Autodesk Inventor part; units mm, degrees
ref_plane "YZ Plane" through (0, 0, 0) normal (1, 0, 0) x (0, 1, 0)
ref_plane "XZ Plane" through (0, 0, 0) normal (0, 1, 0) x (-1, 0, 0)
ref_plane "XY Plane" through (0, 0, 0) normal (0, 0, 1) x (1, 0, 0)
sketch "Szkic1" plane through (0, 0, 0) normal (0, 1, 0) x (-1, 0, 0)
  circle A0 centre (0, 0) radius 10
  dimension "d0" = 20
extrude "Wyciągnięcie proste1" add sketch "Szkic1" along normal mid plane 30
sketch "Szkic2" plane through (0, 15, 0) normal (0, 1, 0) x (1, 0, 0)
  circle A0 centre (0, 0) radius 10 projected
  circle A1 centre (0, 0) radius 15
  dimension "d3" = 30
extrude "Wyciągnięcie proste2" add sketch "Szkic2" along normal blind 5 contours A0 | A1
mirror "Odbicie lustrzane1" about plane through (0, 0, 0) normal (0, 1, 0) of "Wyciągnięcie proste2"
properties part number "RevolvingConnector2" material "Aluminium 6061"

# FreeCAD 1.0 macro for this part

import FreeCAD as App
import Part
import Sketcher
Q = App.Units.Quantity

doc = App.newDocument("Part")
body = doc.addObject("PartDesign::Body", "Body")

# Sketch on XZ plane
sketch1 = body.newObject("Sketcher::SketchObject", "Sketch")
sketch1.AttachmentSupport = (doc.getObject("XZ_Plane"), [""])
sketch1.MapMode = "FlatFace"
sketch1.addGeometry(Part.Circle(App.Vector(0, 0, 0), App.Vector(0, 0, 1), 10), False)
sketch1.addConstraint(Sketcher.Constraint("Coincident", 0, 3, -1, 1))
sketch1.addConstraint(Sketcher.Constraint("Diameter", 0, Q("20 mm")))
pad1 = body.newObject("PartDesign::Pad", "Pad")
pad1.Profile = sketch1
pad1.Length = 30
pad1.Midplane = True

# Sketch on XZ plane
sketch2 = body.newObject("Sketcher::SketchObject", "Sketch001")
sketch2.AttachmentSupport = (doc.getObject("XZ_Plane"), [""])
sketch2.MapMode = "FlatFace"
sketch2.AttachmentOffset = App.Placement(App.Vector(0, 0, -15), App.Rotation())
sketch2.addGeometry(Part.Circle(App.Vector(0, 0, 0), App.Vector(0, 0, 1), 15), False)
sketch2.addConstraint(Sketcher.Constraint("Coincident", 0, 3, -1, 1))
sketch2.addConstraint(Sketcher.Constraint("Diameter", 0, Q("30 mm")))
pad2 = body.newObject("PartDesign::Pad", "Pad001")
pad2.Profile = sketch2
pad2.Length = 5
pad2.Reversed = True
doc.recompute()

mirrored = body.newObject("PartDesign::Mirrored", "Mirrored")
mirrored.Originals = [pad2]
mirrored.MirrorPlane = (doc.getObject("XZ_Plane"), [""])
body.Tip = mirrored

doc.recompute()
